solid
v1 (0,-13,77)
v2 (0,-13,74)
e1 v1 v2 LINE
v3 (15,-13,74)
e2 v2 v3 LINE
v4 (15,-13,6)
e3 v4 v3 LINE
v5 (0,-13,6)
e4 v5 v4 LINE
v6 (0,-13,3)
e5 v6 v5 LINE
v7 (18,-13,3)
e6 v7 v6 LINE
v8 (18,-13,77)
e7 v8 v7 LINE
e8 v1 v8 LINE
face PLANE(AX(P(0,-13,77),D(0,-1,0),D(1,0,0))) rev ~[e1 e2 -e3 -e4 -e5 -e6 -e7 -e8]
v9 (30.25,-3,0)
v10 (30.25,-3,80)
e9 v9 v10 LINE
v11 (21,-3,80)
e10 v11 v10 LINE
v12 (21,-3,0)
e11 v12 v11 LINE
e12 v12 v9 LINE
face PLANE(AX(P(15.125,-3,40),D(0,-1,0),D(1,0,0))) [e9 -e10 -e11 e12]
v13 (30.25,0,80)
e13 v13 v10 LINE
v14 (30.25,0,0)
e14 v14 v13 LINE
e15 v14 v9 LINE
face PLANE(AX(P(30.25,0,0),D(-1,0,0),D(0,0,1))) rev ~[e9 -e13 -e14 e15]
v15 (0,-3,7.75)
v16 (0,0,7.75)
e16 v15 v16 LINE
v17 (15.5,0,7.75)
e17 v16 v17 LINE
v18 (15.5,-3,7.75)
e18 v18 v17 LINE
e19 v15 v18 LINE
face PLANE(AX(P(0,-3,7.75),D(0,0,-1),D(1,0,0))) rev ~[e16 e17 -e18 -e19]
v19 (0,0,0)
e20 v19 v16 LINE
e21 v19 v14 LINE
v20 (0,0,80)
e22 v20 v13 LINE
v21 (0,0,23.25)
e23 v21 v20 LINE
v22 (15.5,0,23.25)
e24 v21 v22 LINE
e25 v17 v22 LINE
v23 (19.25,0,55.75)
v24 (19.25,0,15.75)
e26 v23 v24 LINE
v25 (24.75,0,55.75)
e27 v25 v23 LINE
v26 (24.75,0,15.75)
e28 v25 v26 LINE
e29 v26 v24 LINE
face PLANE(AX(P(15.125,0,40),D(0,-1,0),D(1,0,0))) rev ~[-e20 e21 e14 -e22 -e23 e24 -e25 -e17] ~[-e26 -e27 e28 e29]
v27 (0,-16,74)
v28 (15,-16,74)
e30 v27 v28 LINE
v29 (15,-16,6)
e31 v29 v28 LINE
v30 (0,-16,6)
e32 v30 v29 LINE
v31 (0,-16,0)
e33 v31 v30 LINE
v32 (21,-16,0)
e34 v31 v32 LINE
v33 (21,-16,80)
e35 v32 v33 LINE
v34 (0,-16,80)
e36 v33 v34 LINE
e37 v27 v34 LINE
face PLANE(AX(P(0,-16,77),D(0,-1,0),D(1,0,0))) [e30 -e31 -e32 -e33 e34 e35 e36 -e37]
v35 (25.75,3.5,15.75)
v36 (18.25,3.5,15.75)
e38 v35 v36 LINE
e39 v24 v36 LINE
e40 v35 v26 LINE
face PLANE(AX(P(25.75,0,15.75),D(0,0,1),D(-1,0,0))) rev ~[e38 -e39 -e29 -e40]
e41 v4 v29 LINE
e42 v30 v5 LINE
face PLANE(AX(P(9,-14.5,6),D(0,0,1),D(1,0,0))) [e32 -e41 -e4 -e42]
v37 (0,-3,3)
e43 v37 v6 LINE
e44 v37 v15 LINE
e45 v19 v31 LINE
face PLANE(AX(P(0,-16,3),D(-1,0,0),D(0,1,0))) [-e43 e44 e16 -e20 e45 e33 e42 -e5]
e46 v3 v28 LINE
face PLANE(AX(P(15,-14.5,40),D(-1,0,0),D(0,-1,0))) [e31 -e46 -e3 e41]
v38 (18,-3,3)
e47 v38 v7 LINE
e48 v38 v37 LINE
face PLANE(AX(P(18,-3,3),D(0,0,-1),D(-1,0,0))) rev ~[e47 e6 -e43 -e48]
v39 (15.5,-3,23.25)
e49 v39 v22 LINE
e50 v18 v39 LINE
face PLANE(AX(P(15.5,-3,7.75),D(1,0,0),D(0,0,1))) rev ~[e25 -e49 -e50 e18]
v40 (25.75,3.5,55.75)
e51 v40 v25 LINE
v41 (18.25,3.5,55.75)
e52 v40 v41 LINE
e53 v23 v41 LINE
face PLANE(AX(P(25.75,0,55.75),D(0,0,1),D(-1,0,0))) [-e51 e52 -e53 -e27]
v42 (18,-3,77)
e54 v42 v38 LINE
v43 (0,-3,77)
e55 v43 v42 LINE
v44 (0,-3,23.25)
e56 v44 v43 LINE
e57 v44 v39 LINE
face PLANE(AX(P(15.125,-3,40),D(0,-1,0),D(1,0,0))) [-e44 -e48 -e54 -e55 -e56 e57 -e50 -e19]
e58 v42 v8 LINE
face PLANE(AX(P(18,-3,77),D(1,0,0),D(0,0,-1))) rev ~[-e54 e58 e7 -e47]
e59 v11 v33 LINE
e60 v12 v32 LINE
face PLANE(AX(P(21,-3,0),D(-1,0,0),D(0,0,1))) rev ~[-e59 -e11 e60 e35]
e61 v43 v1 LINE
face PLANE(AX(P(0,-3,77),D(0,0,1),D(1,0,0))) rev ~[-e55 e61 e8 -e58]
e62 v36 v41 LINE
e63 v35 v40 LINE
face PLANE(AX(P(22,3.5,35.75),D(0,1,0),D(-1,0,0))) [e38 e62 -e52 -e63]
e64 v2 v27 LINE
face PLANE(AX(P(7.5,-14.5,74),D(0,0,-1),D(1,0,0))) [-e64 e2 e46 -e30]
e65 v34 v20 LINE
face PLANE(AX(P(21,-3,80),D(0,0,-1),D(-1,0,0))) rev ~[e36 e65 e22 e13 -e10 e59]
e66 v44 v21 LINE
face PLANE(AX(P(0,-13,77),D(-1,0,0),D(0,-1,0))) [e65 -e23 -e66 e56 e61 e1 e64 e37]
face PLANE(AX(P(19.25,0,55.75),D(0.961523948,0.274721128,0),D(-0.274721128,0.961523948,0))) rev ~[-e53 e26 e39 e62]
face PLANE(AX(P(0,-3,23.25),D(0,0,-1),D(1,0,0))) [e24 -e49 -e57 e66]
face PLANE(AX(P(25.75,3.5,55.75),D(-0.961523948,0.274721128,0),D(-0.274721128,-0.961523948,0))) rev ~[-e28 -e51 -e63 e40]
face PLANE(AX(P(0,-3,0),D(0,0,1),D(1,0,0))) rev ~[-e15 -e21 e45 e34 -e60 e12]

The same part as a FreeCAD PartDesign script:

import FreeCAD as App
import Part
import Sketcher

V = App.Vector


def add_polygon(sketch, points):
    """Adds a closed chain of lines whose ends are joined by coincident constraints."""
    first, n = sketch.GeometryCount, len(points)
    for a, b in zip(points, points[1:] + points[:1]):
        sketch.addGeometry(Part.LineSegment(App.Vector(*a, 0), App.Vector(*b, 0)), False)
    for i in range(n):
        sketch.addConstraint(Sketcher.Constraint("Coincident", first + i, 2, first + (i + 1) % n, 1))

doc = App.newDocument("Part")
body = doc.addObject("PartDesign::Body", "Body")

sketch1 = body.newObject("Sketcher::SketchObject", "Sketch")
sketch1.AttachmentSupport = (doc.getObject("XZ_Plane"), [""])
sketch1.MapMode = "FlatFace"
add_polygon(sketch1, [(0, 80), (0, 0), (30, 0), (30, 80)])
sketch1.addConstraint([
    Sketcher.Constraint("Vertical", 0),
    Sketcher.Constraint("Horizontal", 1),
    Sketcher.Constraint("Vertical", 2),
    Sketcher.Constraint("Horizontal", 3),
    Sketcher.Constraint("Coincident", 0, 2, -1, 1),
    Sketcher.Constraint("DistanceY", 0, 2, 0, 1, 80.0),
    Sketcher.Constraint("DistanceX", 1, 1, 1, 2, 30.25),
])
pad1 = body.newObject("PartDesign::Pad", "Pad")
pad1.Profile = sketch1
pad1.Length = 3

sketch2 = body.newObject("Sketcher::SketchObject", "Sketch001")
sketch2.AttachmentSupport = (doc.getObject("XZ_Plane"), [""])
sketch2.MapMode = "FlatFace"
sketch2.AttachmentOffset = App.Placement(V(0, 0, 3), App.Rotation())
add_polygon(sketch2, [(0, 23), (0, 8), (16, 8), (16, 23)])
sketch2.addConstraint([
    Sketcher.Constraint("Vertical", 0),
    Sketcher.Constraint("Horizontal", 1),
    Sketcher.Constraint("Vertical", 2),
    Sketcher.Constraint("Horizontal", 3),
    Sketcher.Constraint("PointOnObject", 0, 2, -2),
    Sketcher.Constraint("Equal", 3, 0),
    Sketcher.Constraint("DistanceX", 1, 1, 1, 2, 15.5),
    Sketcher.Constraint("DistanceY", -1, 1, 0, 2, 7.75),
])
pocket1 = body.newObject("PartDesign::Pocket", "Pocket")
pocket1.Profile = sketch2
pocket1.Length = 3

sketch3 = body.newObject("Sketcher::SketchObject", "Sketch002")
sketch3.AttachmentSupport = (doc.getObject("XZ_Plane"), [""])
sketch3.MapMode = "FlatFace"
sketch3.AttachmentOffset = App.Placement(V(0, 0, 3), App.Rotation())
add_polygon(sketch3, [(18, 3), (0, 3), (0, 0), (21, 0), (21, 80), (0, 80), (0, 77), (18, 77)])
sketch3.addConstraint([
    Sketcher.Constraint("Horizontal", 0),
    Sketcher.Constraint("Vertical", 1),
    Sketcher.Constraint("Horizontal", 2),
    Sketcher.Constraint("Vertical", 3),
    Sketcher.Constraint("Horizontal", 4),
    Sketcher.Constraint("Vertical", 5),
    Sketcher.Constraint("Horizontal", 6),
    Sketcher.Constraint("Vertical", 7),
    Sketcher.Constraint("Coincident", 1, 2, -1, 1),
    Sketcher.Constraint("PointOnObject", 4, 2, -2),
    Sketcher.Constraint("Equal", 1, 5),
    Sketcher.Constraint("DistanceX", 0, 2, 0, 1, 18.0),
    Sketcher.Constraint("DistanceX", 2, 1, 2, 2, 21.0),
    Sketcher.Constraint("DistanceY", 1, 2, 1, 1, 3.0),
    Sketcher.Constraint("DistanceY", 3, 1, 3, 2, 80.0),
])
pad2 = body.newObject("PartDesign::Pad", "Pad001")
pad2.Profile = sketch3
pad2.Length = 13

sketch4 = body.newObject("Sketcher::SketchObject", "Sketch003")
sketch4.AttachmentSupport = (doc.getObject("XY_Plane"), [""])
sketch4.MapMode = "FlatFace"
sketch4.AttachmentOffset = App.Placement(V(0, 0, 3), App.Rotation())
add_polygon(sketch4, [(0, -13), (0, -16), (18, -16), (18, -13)])
sketch4.addConstraint([
    Sketcher.Constraint("Vertical", 0),
    Sketcher.Constraint("Horizontal", 1),
    Sketcher.Constraint("Vertical", 2),
    Sketcher.Constraint("Horizontal", 3),
    Sketcher.Constraint("PointOnObject", 0, 2, -2),
    Sketcher.Constraint("DistanceX", 1, 1, 1, 2, 18.0),
    Sketcher.Constraint("DistanceY", 0, 2, 0, 1, 3.0),
    Sketcher.Constraint("DistanceY", 0, 2, -1, 1, 16.0),
])
pad3 = body.newObject("PartDesign::Pad", "Pad002")
pad3.Profile = sketch4
pad3.Length = 3

sketch5 = body.newObject("Sketcher::SketchObject", "Sketch004")
sketch5.AttachmentSupport = (doc.getObject("YZ_Plane"), [""])
sketch5.MapMode = "FlatFace"
sketch5.AttachmentOffset = App.Placement(V(0, 0, 18), App.Rotation())
add_polygon(sketch5, [(-13, 77), (-13, 3), (-16, 3), (-16, 77)])
sketch5.addConstraint([
    Sketcher.Constraint("Vertical", 0),
    Sketcher.Constraint("Horizontal", 1),
    Sketcher.Constraint("Vertical", 2),
    Sketcher.Constraint("Horizontal", 3),
    Sketcher.Constraint("DistanceX", 1, 2, 1, 1, 3.0),
    Sketcher.Constraint("DistanceY", 0, 2, 0, 1, 74.0),
    Sketcher.Constraint("DistanceX", 0, 2, -1, 1, 13.0),
    Sketcher.Constraint("DistanceY", -1, 1, 0, 2, 3.0),
])
pad4 = body.newObject("PartDesign::Pad", "Pad003")
pad4.Profile = sketch5
pad4.Length = 3
pad4.Reversed = True

sketch6 = body.newObject("Sketcher::SketchObject", "Sketch005")
sketch6.AttachmentSupport = (doc.getObject("XY_Plane"), [""])
sketch6.MapMode = "FlatFace"
sketch6.AttachmentOffset = App.Placement(V(0, 0, 77), App.Rotation())
add_polygon(sketch6, [(0, -16), (0, -13), (15, -13), (15, -16)])
sketch6.addConstraint([
    Sketcher.Constraint("Vertical", 0),
    Sketcher.Constraint("Horizontal", 1),
    Sketcher.Constraint("Vertical", 2),
    Sketcher.Constraint("Horizontal", 3),
    Sketcher.Constraint("PointOnObject", 0, 2, -2),
    Sketcher.Constraint("DistanceX", 1, 1, 1, 2, 15.0),
    Sketcher.Constraint("DistanceY", 0, 1, 0, 2, 3.0),
    Sketcher.Constraint("DistanceY", 0, 2, -1, 1, 13.0),
])
pad5 = body.newObject("PartDesign::Pad", "Pad004")
pad5.Profile = sketch6
pad5.Length = 3
pad5.Reversed = True

sketch7 = body.newObject("Sketcher::SketchObject", "Sketch006")
sketch7.AttachmentSupport = (doc.getObject("XZ_Plane"), [""])
sketch7.MapMode = "FlatFace"
add_polygon(sketch7, [(26, 56), (26, 16), (18, 16), (18, 56)])
sketch7.addConstraint([
    Sketcher.Constraint("Vertical", 0),
    Sketcher.Constraint("Horizontal", 1),
    Sketcher.Constraint("Vertical", 2),
    Sketcher.Constraint("Horizontal", 3),
    Sketcher.Constraint("DistanceY", 0, 2, 0, 1, 40.0),
    Sketcher.Constraint("DistanceX", 1, 2, 1, 1, 7.5),
    Sketcher.Constraint("DistanceX", -1, 1, 0, 2, 25.75),
    Sketcher.Constraint("DistanceY", -1, 1, 0, 2, 15.75),
])
pad6 = body.newObject("PartDesign::Pad", "Pad005")
pad6.Profile = sketch7
pad6.Length = 3.5
pad6.Reversed = True

sketch8 = body.newObject("Sketcher::SketchObject", "Sketch007")
sketch8.AttachmentSupport = (doc.getObject("XY_Plane"), [""])
sketch8.MapMode = "FlatFace"
sketch8.AttachmentOffset = App.Placement(V(0, 0, 55.75), App.Rotation())
add_polygon(sketch8, [(25.8, 0), (25.8, 3.5), (24.8, 0)])
add_polygon(sketch8, [(19.2, 0), (18.2, 3.5), (18.2, 0)])
sketch8.addConstraint([
    Sketcher.Constraint("Vertical", 0),
    Sketcher.Constraint("Horizontal", 2),
    Sketcher.Constraint("Vertical", 4),
    Sketcher.Constraint("Horizontal", 5),
    Sketcher.Constraint("PointOnObject", 1, 2, -1),
    Sketcher.Constraint("PointOnObject", 4, 2, -1),
    Sketcher.Constraint("Horizontal", 0, 2, 3, 2),
    Sketcher.Constraint("Equal", 2, 5),
    Sketcher.Constraint("DistanceX", 2, 1, 2, 2, 1.0),
    Sketcher.Constraint("DistanceY", 0, 1, 0, 2, 3.5),
    Sketcher.Constraint("DistanceX", 3, 2, 1, 2, 6.5),
    Sketcher.Constraint("DistanceX", -1, 1, 0, 2, 25.75),
])
pocket2 = body.newObject("PartDesign::Pocket", "Pocket001")
pocket2.Profile = sketch8
pocket2.Length = 40

doc.recompute()
